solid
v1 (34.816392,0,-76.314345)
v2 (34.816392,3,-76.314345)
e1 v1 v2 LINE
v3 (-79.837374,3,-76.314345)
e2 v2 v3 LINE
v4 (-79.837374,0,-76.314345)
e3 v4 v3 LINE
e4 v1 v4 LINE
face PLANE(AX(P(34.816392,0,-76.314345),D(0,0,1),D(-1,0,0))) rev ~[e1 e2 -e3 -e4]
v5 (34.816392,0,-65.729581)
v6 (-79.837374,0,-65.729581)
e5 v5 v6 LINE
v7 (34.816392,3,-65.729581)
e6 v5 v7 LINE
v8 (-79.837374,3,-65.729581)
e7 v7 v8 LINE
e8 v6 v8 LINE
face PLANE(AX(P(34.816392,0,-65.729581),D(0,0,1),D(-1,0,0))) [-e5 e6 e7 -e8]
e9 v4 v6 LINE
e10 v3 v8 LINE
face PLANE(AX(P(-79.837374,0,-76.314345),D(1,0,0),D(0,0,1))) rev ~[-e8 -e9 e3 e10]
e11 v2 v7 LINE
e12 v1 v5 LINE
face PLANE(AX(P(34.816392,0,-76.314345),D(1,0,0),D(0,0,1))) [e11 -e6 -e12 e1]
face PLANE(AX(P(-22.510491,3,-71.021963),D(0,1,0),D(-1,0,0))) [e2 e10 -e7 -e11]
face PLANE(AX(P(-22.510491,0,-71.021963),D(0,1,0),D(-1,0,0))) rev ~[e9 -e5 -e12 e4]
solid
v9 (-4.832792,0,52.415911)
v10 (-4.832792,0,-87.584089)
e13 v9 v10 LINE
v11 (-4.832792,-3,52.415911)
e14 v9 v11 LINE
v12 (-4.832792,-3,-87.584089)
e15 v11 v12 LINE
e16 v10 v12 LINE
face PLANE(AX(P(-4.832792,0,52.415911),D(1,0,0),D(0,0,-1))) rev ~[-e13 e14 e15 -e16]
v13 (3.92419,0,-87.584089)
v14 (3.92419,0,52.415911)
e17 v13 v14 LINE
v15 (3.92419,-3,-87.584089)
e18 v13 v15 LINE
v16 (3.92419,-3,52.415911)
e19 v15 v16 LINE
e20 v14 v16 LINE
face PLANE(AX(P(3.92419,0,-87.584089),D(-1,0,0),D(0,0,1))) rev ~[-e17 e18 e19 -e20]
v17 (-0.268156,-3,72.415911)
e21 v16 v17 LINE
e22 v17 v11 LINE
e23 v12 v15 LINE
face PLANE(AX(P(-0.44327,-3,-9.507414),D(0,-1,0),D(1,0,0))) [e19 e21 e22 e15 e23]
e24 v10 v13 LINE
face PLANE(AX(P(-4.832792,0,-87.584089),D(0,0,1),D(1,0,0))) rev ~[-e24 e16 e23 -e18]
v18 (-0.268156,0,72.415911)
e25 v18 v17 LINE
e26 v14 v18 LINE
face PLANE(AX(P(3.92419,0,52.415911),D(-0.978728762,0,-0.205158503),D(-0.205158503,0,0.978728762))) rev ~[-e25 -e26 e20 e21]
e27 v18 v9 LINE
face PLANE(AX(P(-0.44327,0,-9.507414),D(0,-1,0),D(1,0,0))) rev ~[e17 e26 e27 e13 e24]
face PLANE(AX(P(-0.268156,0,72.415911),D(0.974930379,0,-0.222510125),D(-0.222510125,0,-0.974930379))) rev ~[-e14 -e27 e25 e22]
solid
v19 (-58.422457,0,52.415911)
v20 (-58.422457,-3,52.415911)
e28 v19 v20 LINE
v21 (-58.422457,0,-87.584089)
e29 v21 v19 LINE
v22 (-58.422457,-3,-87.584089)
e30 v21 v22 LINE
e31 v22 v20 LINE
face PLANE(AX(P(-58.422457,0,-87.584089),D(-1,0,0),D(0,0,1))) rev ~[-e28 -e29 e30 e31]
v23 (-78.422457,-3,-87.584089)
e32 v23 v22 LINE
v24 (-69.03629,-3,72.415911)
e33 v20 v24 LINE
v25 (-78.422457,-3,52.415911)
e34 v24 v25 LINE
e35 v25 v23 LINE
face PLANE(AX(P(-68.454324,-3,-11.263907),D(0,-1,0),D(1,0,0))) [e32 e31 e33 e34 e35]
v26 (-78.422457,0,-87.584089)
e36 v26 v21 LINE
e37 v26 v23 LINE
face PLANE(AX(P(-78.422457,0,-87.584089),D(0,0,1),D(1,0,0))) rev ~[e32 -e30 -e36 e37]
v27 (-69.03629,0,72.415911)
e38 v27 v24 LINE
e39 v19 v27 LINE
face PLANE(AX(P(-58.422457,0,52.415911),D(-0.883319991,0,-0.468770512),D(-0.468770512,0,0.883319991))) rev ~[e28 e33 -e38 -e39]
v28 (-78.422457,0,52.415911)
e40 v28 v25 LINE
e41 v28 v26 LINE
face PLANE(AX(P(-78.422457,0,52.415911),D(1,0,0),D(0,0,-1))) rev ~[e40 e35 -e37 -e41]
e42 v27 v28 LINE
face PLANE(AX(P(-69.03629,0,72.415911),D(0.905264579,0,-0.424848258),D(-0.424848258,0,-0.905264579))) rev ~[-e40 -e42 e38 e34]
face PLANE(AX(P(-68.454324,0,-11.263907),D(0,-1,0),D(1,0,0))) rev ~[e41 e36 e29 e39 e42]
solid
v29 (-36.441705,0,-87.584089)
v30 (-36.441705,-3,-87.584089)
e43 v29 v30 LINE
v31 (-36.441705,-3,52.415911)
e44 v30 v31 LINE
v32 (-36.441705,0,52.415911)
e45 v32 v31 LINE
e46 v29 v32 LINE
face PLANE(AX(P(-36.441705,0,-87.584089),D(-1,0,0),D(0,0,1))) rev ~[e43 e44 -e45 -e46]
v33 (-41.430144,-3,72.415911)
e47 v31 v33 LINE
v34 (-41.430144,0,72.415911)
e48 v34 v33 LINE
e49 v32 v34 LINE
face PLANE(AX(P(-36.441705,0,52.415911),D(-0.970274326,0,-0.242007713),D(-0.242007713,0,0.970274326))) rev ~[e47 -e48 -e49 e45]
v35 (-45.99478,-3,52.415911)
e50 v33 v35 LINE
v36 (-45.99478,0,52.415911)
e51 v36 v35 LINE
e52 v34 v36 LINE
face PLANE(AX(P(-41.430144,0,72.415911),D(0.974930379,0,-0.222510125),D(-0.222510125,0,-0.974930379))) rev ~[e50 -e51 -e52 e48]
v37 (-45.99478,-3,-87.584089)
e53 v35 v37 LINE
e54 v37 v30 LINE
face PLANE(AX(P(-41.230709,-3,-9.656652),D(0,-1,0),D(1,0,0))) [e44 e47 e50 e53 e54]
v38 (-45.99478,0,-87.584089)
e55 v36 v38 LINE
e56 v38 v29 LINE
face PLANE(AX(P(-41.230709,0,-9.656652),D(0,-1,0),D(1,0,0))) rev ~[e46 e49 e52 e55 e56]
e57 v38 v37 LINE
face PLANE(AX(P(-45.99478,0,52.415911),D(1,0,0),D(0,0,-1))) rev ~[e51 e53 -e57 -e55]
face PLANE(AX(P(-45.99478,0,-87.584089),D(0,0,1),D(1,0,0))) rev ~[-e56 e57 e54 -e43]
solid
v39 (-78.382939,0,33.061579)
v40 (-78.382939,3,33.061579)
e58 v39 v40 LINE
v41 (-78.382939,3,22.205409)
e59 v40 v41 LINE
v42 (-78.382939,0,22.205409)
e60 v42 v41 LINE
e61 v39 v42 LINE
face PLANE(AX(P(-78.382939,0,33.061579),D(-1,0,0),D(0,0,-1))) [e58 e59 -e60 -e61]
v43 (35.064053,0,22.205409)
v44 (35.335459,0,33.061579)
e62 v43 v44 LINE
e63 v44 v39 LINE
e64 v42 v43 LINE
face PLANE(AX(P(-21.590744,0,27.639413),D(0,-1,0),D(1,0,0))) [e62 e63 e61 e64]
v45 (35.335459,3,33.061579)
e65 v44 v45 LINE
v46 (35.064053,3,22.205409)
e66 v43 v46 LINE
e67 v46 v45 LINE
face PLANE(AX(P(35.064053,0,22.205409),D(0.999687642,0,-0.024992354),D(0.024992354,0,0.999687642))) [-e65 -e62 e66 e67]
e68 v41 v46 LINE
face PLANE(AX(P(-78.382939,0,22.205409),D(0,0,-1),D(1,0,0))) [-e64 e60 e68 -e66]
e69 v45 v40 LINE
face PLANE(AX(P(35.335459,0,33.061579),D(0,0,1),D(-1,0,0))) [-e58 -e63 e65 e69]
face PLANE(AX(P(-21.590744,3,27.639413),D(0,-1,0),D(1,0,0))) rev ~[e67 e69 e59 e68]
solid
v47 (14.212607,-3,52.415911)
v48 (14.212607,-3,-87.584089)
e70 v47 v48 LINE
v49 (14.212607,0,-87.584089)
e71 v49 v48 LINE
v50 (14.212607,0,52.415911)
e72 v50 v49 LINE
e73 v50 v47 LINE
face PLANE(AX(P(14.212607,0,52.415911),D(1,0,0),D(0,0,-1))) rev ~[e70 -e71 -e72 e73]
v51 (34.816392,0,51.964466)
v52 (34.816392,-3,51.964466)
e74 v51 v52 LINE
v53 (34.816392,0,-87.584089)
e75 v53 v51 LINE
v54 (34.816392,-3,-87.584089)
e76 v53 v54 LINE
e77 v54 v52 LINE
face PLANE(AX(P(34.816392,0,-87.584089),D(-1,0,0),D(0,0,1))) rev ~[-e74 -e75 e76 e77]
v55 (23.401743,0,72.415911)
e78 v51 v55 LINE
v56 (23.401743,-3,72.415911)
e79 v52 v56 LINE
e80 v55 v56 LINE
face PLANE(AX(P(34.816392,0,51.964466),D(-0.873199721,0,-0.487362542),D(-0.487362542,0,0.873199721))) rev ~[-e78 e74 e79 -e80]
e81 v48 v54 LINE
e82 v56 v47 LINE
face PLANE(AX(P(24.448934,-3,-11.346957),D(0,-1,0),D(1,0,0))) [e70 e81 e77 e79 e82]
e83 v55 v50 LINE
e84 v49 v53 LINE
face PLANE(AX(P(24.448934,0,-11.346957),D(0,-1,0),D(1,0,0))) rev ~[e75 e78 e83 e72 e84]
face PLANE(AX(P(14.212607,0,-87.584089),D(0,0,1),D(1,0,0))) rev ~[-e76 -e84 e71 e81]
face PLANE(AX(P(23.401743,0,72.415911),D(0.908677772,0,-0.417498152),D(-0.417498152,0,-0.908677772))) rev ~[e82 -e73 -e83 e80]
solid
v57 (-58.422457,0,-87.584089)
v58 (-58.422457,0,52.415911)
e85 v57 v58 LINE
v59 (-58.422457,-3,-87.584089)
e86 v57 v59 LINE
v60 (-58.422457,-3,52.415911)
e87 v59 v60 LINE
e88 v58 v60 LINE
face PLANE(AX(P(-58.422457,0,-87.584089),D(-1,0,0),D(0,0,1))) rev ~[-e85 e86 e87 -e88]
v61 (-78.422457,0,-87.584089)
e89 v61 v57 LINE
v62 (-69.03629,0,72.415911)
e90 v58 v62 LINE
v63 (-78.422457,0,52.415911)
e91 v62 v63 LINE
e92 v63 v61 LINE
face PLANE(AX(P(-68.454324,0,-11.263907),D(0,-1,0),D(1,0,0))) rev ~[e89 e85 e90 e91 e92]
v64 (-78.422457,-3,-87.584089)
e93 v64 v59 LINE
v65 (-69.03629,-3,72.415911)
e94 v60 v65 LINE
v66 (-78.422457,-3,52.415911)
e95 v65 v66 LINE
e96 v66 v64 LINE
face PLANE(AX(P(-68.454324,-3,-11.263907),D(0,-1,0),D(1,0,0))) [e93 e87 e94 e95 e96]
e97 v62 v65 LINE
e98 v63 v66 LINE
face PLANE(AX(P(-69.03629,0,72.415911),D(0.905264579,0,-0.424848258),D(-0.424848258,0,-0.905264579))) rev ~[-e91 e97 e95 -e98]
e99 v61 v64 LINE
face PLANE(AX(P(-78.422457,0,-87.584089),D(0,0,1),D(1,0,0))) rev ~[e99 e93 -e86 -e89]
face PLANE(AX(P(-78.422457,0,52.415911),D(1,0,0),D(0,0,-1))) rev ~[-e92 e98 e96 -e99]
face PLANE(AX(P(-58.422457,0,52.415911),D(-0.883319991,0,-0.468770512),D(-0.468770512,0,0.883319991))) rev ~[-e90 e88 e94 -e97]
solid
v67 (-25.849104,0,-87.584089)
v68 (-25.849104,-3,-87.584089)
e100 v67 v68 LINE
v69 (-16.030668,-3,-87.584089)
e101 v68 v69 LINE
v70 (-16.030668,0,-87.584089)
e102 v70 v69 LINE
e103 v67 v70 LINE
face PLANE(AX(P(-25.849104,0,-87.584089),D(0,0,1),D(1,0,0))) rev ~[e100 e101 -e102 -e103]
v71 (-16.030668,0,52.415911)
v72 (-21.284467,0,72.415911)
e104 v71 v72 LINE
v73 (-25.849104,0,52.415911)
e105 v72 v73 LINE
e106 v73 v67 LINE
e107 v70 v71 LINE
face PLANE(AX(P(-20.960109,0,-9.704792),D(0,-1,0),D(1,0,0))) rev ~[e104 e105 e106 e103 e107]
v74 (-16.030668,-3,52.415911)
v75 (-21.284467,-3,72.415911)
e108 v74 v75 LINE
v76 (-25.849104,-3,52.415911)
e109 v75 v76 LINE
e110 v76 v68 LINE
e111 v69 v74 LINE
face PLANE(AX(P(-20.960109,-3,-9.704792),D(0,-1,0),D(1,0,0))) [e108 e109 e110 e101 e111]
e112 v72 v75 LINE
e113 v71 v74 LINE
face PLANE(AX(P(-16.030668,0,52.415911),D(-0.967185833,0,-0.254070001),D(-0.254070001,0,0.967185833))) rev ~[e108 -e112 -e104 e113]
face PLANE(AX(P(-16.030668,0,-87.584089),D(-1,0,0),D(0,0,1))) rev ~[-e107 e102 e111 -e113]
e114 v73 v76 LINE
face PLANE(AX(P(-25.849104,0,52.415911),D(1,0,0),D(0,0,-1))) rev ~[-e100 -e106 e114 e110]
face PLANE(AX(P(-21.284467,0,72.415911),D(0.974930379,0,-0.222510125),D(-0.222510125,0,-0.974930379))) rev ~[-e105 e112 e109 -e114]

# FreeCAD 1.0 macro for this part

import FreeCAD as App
import Part
import Sketcher
from FreeCAD import Vector
Q = App.Units.Quantity

doc = App.newDocument("Part")
body = doc.addObject("PartDesign::Body", "Body")

sketch1 = body.newObject("Sketcher::SketchObject", "Sketch")
sketch1.AttachmentSupport = (doc.getObject("XZ_Plane"), [""])
sketch1.MapMode = "FlatFace"
sketch1.addGeometry([
    Part.LineSegment(Vector(-45.99478, 52.415911, 0), Vector(-45.99478, -87.584089, 0)),
    Part.LineSegment(Vector(-45.99478, -87.584089, 0), Vector(-36.441705, -87.584089, 0)),
    Part.LineSegment(Vector(-36.441705, -87.584089, 0), Vector(-36.441705, 52.415911, 0)),
    Part.LineSegment(Vector(-36.441705, 52.415911, 0), Vector(-41.430144, 72.415911, 0)),
    Part.LineSegment(Vector(-41.430144, 72.415911, 0), Vector(-45.99478, 52.415911, 0)),
], False)
sketch1.addConstraint([
    Sketcher.Constraint("Coincident", 0, 2, 1, 1),
    Sketcher.Constraint("Coincident", 1, 2, 2, 1),
    Sketcher.Constraint("Coincident", 2, 2, 3, 1),
    Sketcher.Constraint("Coincident", 3, 2, 4, 1),
    Sketcher.Constraint("Coincident", 4, 2, 0, 1),
    Sketcher.Constraint("Vertical", 0),
    Sketcher.Constraint("Horizontal", 1),
    Sketcher.Constraint("Vertical", 2),
    Sketcher.Constraint("Horizontal", 2, 2, 4, 2),
    Sketcher.Constraint("DistanceY", 0, 2, 0, 1, Q("140 mm")),
    Sketcher.Constraint("DistanceY", 2, 2, 3, 2, Q("20 mm")),
    Sketcher.Constraint("DistanceX", 1, 1, 1, 2, Q("9.553075 mm")),
    Sketcher.Constraint("DistanceX", 0, 2, -1, 1, Q("45.99478 mm")),
    Sketcher.Constraint("DistanceY", 0, 2, -1, 1, Q("87.584089 mm")),
    Sketcher.Constraint("DistanceX", 3, 2, 2, 2, Q("4.988439 mm")),
])
pad1 = body.newObject("PartDesign::Pad", "Pad")
pad1.Profile = sketch1
pad1.Length = 3
body2 = doc.addObject("PartDesign::Body", "Body001")

sketch2 = body2.newObject("Sketcher::SketchObject", "Sketch001")
sketch2.AttachmentSupport = (doc.getObject("XZ_Plane001"), [""])
sketch2.MapMode = "FlatFace"
sketch2.addGeometry([
    Part.LineSegment(Vector(-78.422457, 52.415911, 0), Vector(-78.422457, -87.584089, 0)),
    Part.LineSegment(Vector(-78.422457, -87.584089, 0), Vector(-58.422457, -87.584089, 0)),
    Part.LineSegment(Vector(-58.422457, -87.584089, 0), Vector(-58.422457, 52.415911, 0)),
    Part.LineSegment(Vector(-58.422457, 52.415911, 0), Vector(-69.03629, 72.415911, 0)),
    Part.LineSegment(Vector(-69.03629, 72.415911, 0), Vector(-78.422457, 52.415911, 0)),
], False)
sketch2.addConstraint([
    Sketcher.Constraint("Coincident", 0, 2, 1, 1),
    Sketcher.Constraint("Coincident", 1, 2, 2, 1),
    Sketcher.Constraint("Coincident", 2, 2, 3, 1),
    Sketcher.Constraint("Coincident", 3, 2, 4, 1),
    Sketcher.Constraint("Coincident", 4, 2, 0, 1),
    Sketcher.Constraint("Vertical", 0),
    Sketcher.Constraint("Horizontal", 1),
    Sketcher.Constraint("Vertical", 2),
    Sketcher.Constraint("Horizontal", 2, 2, 4, 2),
    Sketcher.Constraint("DistanceX", 1, 1, 1, 2, Q("20 mm")),
    Sketcher.Constraint("DistanceY", 0, 2, 0, 1, Q("140 mm")),
    Sketcher.Constraint("DistanceY", 2, 2, 3, 2, Q("20 mm")),
    Sketcher.Constraint("Distance", 3, Q("22.641851 mm")),
    Sketcher.Constraint("DistanceY", 0, 2, -1, 1, Q("87.584089 mm")),
    Sketcher.Constraint("DistanceX", 3, 2, -1, 1, Q("69.03629 mm")),
])
pad2 = body2.newObject("PartDesign::Pad", "Pad001")
pad2.Profile = sketch2
pad2.Length = 3
body3 = doc.addObject("PartDesign::Body", "Body002")

sketch3 = body3.newObject("Sketcher::SketchObject", "Sketch002")
sketch3.AttachmentSupport = (doc.getObject("XZ_Plane002"), [""])
sketch3.MapMode = "FlatFace"
sketch3.addGeometry([
    Part.LineSegment(Vector(-4.832792, 52.415911, 0), Vector(-4.832792, -87.584089, 0)),
    Part.LineSegment(Vector(-4.832792, -87.584089, 0), Vector(3.92419, -87.584089, 0)),
    Part.LineSegment(Vector(3.92419, -87.584089, 0), Vector(3.92419, 52.415911, 0)),
    Part.LineSegment(Vector(3.92419, 52.415911, 0), Vector(-0.268156, 72.415911, 0)),
    Part.LineSegment(Vector(-0.268156, 72.415911, 0), Vector(-4.832792, 52.415911, 0)),
], False)
sketch3.addConstraint([
    Sketcher.Constraint("Coincident", 0, 2, 1, 1),
    Sketcher.Constraint("Coincident", 1, 2, 2, 1),
    Sketcher.Constraint("Coincident", 2, 2, 3, 1),
    Sketcher.Constraint("Coincident", 3, 2, 4, 1),
    Sketcher.Constraint("Coincident", 4, 2, 0, 1),
    Sketcher.Constraint("Vertical", 0),
    Sketcher.Constraint("Horizontal", 1),
    Sketcher.Constraint("Vertical", 2),
    Sketcher.Constraint("Horizontal", 2, 2, 4, 2),
    Sketcher.Constraint("DistanceY", 0, 2, 0, 1, Q("140 mm")),
    Sketcher.Constraint("DistanceY", 2, 2, 3, 2, Q("20 mm")),
    Sketcher.Constraint("Distance", 3, Q("20.434671 mm")),
    Sketcher.Constraint("DistanceX", 1, 1, 1, 2, Q("8.756983 mm")),
    Sketcher.Constraint("DistanceY", 0, 2, -1, 1, Q("87.584089 mm")),
    Sketcher.Constraint("DistanceX", -1, 1, 1, 2, Q("3.92419 mm")),
])
pad3 = body3.newObject("PartDesign::Pad", "Pad002")
pad3.Profile = sketch3
pad3.Length = 3
body4 = doc.addObject("PartDesign::Body", "Body003")

sketch4 = body4.newObject("Sketcher::SketchObject", "Sketch003")
sketch4.AttachmentSupport = (doc.getObject("XZ_Plane003"), [""])
sketch4.MapMode = "FlatFace"
sketch4.addGeometry([
    Part.LineSegment(Vector(-25.849104, 52.415911, 0), Vector(-25.849104, -87.584089, 0)),
    Part.LineSegment(Vector(-25.849104, -87.584089, 0), Vector(-16.030668, -87.584089, 0)),
    Part.LineSegment(Vector(-16.030668, -87.584089, 0), Vector(-16.030668, 52.415911, 0)),
    Part.LineSegment(Vector(-16.030668, 52.415911, 0), Vector(-21.284467, 72.415911, 0)),
    Part.LineSegment(Vector(-21.284467, 72.415911, 0), Vector(-25.849104, 52.415911, 0)),
], False)
sketch4.addConstraint([
    Sketcher.Constraint("Coincident", 0, 2, 1, 1),
    Sketcher.Constraint("Coincident", 1, 2, 2, 1),
    Sketcher.Constraint("Coincident", 2, 2, 3, 1),
    Sketcher.Constraint("Coincident", 3, 2, 4, 1),
    Sketcher.Constraint("Coincident", 4, 2, 0, 1),
    Sketcher.Constraint("Vertical", 0),
    Sketcher.Constraint("Horizontal", 1),
    Sketcher.Constraint("Vertical", 2),
    Sketcher.Constraint("Horizontal", 2, 2, 4, 2),
    Sketcher.Constraint("DistanceY", 0, 2, 0, 1, Q("140 mm")),
    Sketcher.Constraint("DistanceY", 2, 2, 3, 2, Q("20 mm")),
    Sketcher.Constraint("DistanceX", 3, 2, 2, 2, Q("5.253799 mm")),
    Sketcher.Constraint("DistanceX", 1, 1, 1, 2, Q("9.818435 mm")),
    Sketcher.Constraint("DistanceY", 0, 2, -1, 1, Q("87.584089 mm")),
    Sketcher.Constraint("DistanceX", 1, 2, -1, 1, Q("16.030668 mm")),
])
pad4 = body4.newObject("PartDesign::Pad", "Pad003")
pad4.Profile = sketch4
pad4.Length = 3
body5 = doc.addObject("PartDesign::Body", "Body004")

sketch5 = body5.newObject("Sketcher::SketchObject", "Sketch004")
sketch5.AttachmentSupport = (doc.getObject("XZ_Plane004"), [""])
sketch5.MapMode = "FlatFace"
sketch5.addGeometry([
    Part.LineSegment(Vector(14.212607, 52.415911, 0), Vector(14.212607, -87.584089, 0)),
    Part.LineSegment(Vector(14.212607, -87.584089, 0), Vector(34.816392, -87.584089, 0)),
    Part.LineSegment(Vector(34.816392, -87.584089, 0), Vector(34.816392, 51.964466, 0)),
    Part.LineSegment(Vector(34.816392, 51.964466, 0), Vector(23.401743, 72.415911, 0)),
    Part.LineSegment(Vector(23.401743, 72.415911, 0), Vector(14.212607, 52.415911, 0)),
], False)
sketch5.addConstraint([
    Sketcher.Constraint("Coincident", 0, 2, 1, 1),
    Sketcher.Constraint("Coincident", 1, 2, 2, 1),
    Sketcher.Constraint("Coincident", 2, 2, 3, 1),
    Sketcher.Constraint("Coincident", 3, 2, 4, 1),
    Sketcher.Constraint("Coincident", 4, 2, 0, 1),
    Sketcher.Constraint("Vertical", 0),
    Sketcher.Constraint("Horizontal", 1),
    Sketcher.Constraint("Vertical", 2),
    Sketcher.Constraint("DistanceY", 0, 2, 0, 1, Q("140 mm")),
    Sketcher.Constraint("DistanceY", 0, 2, 3, 2, Q("160 mm")),
    Sketcher.Constraint("Distance", 3, Q("23.421269 mm")),
    Sketcher.Constraint("DistanceX", 1, 1, 1, 2, Q("20.603784 mm")),
    Sketcher.Constraint("DistanceY", 2, 1, 2, 2, Q("139.548555 mm")),
    Sketcher.Constraint("DistanceY", 0, 2, -1, 1, Q("87.584089 mm")),
    Sketcher.Constraint("DistanceX", -1, 1, 1, 2, Q("34.816392 mm")),
])
pad5 = body5.newObject("PartDesign::Pad", "Pad004")
pad5.Profile = sketch5
pad5.Length = 3
body6 = doc.addObject("PartDesign::Body", "Body005")

sketch6 = body6.newObject("Sketcher::SketchObject", "Sketch005")
sketch6.AttachmentSupport = (doc.getObject("XZ_Plane005"), [""])
sketch6.MapMode = "FlatFace"
sketch6.addGeometry([
    Part.LineSegment(Vector(-69.03629, 72.415911, 0), Vector(-78.422457, 52.415911, 0)),
    Part.LineSegment(Vector(-78.422457, 52.415911, 0), Vector(-78.422457, -87.584089, 0)),
    Part.LineSegment(Vector(-78.422457, -87.584089, 0), Vector(-58.422457, -87.584089, 0)),
    Part.LineSegment(Vector(-58.422457, -87.584089, 0), Vector(-58.422457, 52.415911, 0)),
    Part.LineSegment(Vector(-58.422457, 52.415911, 0), Vector(-69.03629, 72.415911, 0)),
], False)
sketch6.addConstraint([
    Sketcher.Constraint("Coincident", 0, 2, 1, 1),
    Sketcher.Constraint("Coincident", 1, 2, 2, 1),
    Sketcher.Constraint("Coincident", 2, 2, 3, 1),
    Sketcher.Constraint("Coincident", 3, 2, 4, 1),
    Sketcher.Constraint("Coincident", 4, 2, 0, 1),
    Sketcher.Constraint("Vertical", 1),
    Sketcher.Constraint("Horizontal", 2),
    Sketcher.Constraint("Vertical", 3),
    Sketcher.Constraint("Horizontal", 0, 2, 3, 2),
    Sketcher.Constraint("DistanceX", 2, 1, 2, 2, Q("20 mm")),
    Sketcher.Constraint("DistanceY", 1, 2, 1, 1, Q("140 mm")),
    Sketcher.Constraint("DistanceY", 0, 2, 4, 2, Q("20 mm")),
    Sketcher.Constraint("Distance", 0, Q("22.092989 mm")),
    Sketcher.Constraint("DistanceY", -1, 1, 0, 2, Q("52.415911 mm")),
    Sketcher.Constraint("DistanceX", 4, 2, -1, 1, Q("69.03629 mm")),
])
pad6 = body6.newObject("PartDesign::Pad", "Pad005")
pad6.Profile = sketch6
pad6.Length = 3
body7 = doc.addObject("PartDesign::Body", "Body006")

sketch7 = body7.newObject("Sketcher::SketchObject", "Sketch006")
sketch7.AttachmentSupport = (doc.getObject("XZ_Plane006"), [""])
sketch7.MapMode = "FlatFace"
sketch7.addGeometry([
    Part.LineSegment(Vector(35.064053, 22.205409, 0), Vector(35.335459, 33.061579, 0)),
    Part.LineSegment(Vector(35.335459, 33.061579, 0), Vector(-78.382939, 33.061579, 0)),
    Part.LineSegment(Vector(-78.382939, 33.061579, 0), Vector(-78.382939, 22.205409, 0)),
    Part.LineSegment(Vector(-78.382939, 22.205409, 0), Vector(35.064053, 22.205409, 0)),
], False)
sketch7.addConstraint([
    Sketcher.Constraint("Coincident", 0, 2, 1, 1),
    Sketcher.Constraint("Coincident", 1, 2, 2, 1),
    Sketcher.Constraint("Coincident", 2, 2, 3, 1),
    Sketcher.Constraint("Coincident", 3, 2, 0, 1),
    Sketcher.Constraint("Horizontal", 1),
    Sketcher.Constraint("Vertical", 2),
    Sketcher.Constraint("Horizontal", 3),
    Sketcher.Constraint("DistanceX", 3, 1, 3, 2, Q("113.446992 mm")),
    Sketcher.Constraint("DistanceY", 2, 2, 2, 1, Q("10.85617 mm")),
    Sketcher.Constraint("DistanceX", 1, 2, 1, 1, Q("113.718398 mm")),
    Sketcher.Constraint("DistanceX", -1, 1, 0, 2, Q("35.335459 mm")),
    Sketcher.Constraint("DistanceY", -1, 1, 0, 2, Q("33.061579 mm")),
])
pad7 = body7.newObject("PartDesign::Pad", "Pad006")
pad7.Profile = sketch7
pad7.Length = 3
pad7.Reversed = True
body8 = doc.addObject("PartDesign::Body", "Body007")

sketch8 = body8.newObject("Sketcher::SketchObject", "Sketch007")
sketch8.AttachmentSupport = (doc.getObject("XZ_Plane007"), [""])
sketch8.MapMode = "FlatFace"
sketch8.addGeometry([
    Part.LineSegment(Vector(34.816392, -65.729581, 0), Vector(34.816392, -76.314345, 0)),
    Part.LineSegment(Vector(34.816392, -76.314345, 0), Vector(-79.837374, -76.314345, 0)),
    Part.LineSegment(Vector(-79.837374, -76.314345, 0), Vector(-79.837374, -65.729581, 0)),
    Part.LineSegment(Vector(-79.837374, -65.729581, 0), Vector(34.816392, -65.729581, 0)),
], False)
sketch8.addConstraint([
    Sketcher.Constraint("Coincident", 0, 2, 1, 1),
    Sketcher.Constraint("Coincident", 1, 2, 2, 1),
    Sketcher.Constraint("Coincident", 2, 2, 3, 1),
    Sketcher.Constraint("Coincident", 3, 2, 0, 1),
    Sketcher.Constraint("Vertical", 0),
    Sketcher.Constraint("Horizontal", 1),
    Sketcher.Constraint("Vertical", 2),
    Sketcher.Constraint("Horizontal", 3),
    Sketcher.Constraint("DistanceX", 1, 2, 1, 1, Q("114.653766 mm")),
    Sketcher.Constraint("DistanceY", 0, 2, 0, 1, Q("10.584764 mm")),
    Sketcher.Constraint("DistanceX", -1, 1, 0, 2, Q("34.816392 mm")),
    Sketcher.Constraint("DistanceY", 2, 2, -1, 1, Q("65.729581 mm")),
])
pad8 = body8.newObject("PartDesign::Pad", "Pad007")
pad8.Profile = sketch8
pad8.Length = 3
pad8.Reversed = True

doc.recompute()
